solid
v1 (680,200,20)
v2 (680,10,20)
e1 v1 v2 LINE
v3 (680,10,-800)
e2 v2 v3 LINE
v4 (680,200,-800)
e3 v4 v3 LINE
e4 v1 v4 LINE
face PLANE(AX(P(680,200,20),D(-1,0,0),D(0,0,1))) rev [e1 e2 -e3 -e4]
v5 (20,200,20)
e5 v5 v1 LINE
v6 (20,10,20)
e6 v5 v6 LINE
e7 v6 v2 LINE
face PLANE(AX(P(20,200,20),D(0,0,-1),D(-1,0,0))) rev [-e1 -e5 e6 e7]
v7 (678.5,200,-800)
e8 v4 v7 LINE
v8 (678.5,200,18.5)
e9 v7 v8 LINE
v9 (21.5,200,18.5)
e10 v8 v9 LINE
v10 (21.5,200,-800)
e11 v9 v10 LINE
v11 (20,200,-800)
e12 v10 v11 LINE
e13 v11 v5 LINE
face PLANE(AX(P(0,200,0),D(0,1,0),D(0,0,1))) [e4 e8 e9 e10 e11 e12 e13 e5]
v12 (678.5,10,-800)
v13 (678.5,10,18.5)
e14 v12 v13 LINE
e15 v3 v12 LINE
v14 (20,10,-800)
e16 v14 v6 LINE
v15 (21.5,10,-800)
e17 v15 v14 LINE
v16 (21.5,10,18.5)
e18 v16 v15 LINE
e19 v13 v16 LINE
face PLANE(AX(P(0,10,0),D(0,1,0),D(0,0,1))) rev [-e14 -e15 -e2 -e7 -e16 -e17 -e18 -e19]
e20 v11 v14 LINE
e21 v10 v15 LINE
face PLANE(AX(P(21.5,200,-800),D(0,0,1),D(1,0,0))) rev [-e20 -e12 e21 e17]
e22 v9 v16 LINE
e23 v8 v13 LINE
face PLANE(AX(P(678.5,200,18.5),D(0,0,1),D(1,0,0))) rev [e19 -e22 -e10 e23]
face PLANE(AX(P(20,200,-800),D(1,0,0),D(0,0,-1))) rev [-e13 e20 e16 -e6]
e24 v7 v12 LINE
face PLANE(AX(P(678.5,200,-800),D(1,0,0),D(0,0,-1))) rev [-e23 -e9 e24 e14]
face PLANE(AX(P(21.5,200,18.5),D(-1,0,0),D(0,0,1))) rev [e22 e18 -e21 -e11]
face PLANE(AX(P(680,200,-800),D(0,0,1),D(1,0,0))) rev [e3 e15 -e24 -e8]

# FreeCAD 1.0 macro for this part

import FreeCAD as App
import Part
import Sketcher


def add_polygon(sketch, points):
    """Adds a closed chain of lines whose ends are joined by coincident constraints."""
    first, n = sketch.GeometryCount, len(points)
    for a, b in zip(points, points[1:] + points[:1]):
        sketch.addGeometry(Part.LineSegment(App.Vector(*a, 0), App.Vector(*b, 0)), False)
    for i in range(n):
        sketch.addConstraint(Sketcher.Constraint("Coincident", first + i, 2, first + (i + 1) % n, 1))

doc = App.newDocument("Part")
body = doc.addObject("PartDesign::Body", "Body")

# Sketch on XZ plane
sketch1 = doc.addObject("Sketcher::SketchObject", "Sketch")
body.addObject(sketch1)
sketch1.AttachmentSupport = (doc.XZ_Plane, [""])
sketch1.MapMode = "FlatFace"
sketch1.AttachmentOffset = App.Placement(App.Vector(0, 0, -10), App.Rotation())
add_polygon(sketch1, [(20, -800), (20, 20), (680, 20), (680, -800), (678.5, -800), (678.5, 18.5), (21.5, 18.5), (21.5, -800)])  # lines 0-7
sketch1.addConstraint(Sketcher.Constraint("Vertical", 0))
sketch1.addConstraint(Sketcher.Constraint("Horizontal", 1))
sketch1.addConstraint(Sketcher.Constraint("Vertical", 2))
sketch1.addConstraint(Sketcher.Constraint("Horizontal", 3))
sketch1.addConstraint(Sketcher.Constraint("Vertical", 4))
sketch1.addConstraint(Sketcher.Constraint("Horizontal", 5))
sketch1.addConstraint(Sketcher.Constraint("Vertical", 6))
sketch1.addConstraint(Sketcher.Constraint("Horizontal", 7))
sketch1.addConstraint(Sketcher.Constraint("Horizontal", 3, 2, 6, 2))
sketch1.addConstraint(Sketcher.Constraint("Equal", 3, 7))
sketch1.addConstraint(Sketcher.Constraint("DistanceX", 1, 1, 1, 2, 660.0))
sketch1.addConstraint(Sketcher.Constraint("DistanceX", 5, 2, 5, 1, 657.0))
sketch1.addConstraint(Sketcher.Constraint("DistanceY", 0, 1, 0, 2, 820.0))
sketch1.addConstraint(Sketcher.Constraint("DistanceY", 4, 1, 4, 2, 818.5))
sketch1.addConstraint(Sketcher.Constraint("DistanceX", -1, 1, 0, 2, 20.0))
sketch1.addConstraint(Sketcher.Constraint("DistanceY", -1, 1, 0, 2, 20.0))
pad1 = doc.addObject("PartDesign::Pad", "Pad")
body.addObject(pad1)
pad1.Profile = sketch1
pad1.Length = 190
pad1.Reversed = True

doc.recompute()
